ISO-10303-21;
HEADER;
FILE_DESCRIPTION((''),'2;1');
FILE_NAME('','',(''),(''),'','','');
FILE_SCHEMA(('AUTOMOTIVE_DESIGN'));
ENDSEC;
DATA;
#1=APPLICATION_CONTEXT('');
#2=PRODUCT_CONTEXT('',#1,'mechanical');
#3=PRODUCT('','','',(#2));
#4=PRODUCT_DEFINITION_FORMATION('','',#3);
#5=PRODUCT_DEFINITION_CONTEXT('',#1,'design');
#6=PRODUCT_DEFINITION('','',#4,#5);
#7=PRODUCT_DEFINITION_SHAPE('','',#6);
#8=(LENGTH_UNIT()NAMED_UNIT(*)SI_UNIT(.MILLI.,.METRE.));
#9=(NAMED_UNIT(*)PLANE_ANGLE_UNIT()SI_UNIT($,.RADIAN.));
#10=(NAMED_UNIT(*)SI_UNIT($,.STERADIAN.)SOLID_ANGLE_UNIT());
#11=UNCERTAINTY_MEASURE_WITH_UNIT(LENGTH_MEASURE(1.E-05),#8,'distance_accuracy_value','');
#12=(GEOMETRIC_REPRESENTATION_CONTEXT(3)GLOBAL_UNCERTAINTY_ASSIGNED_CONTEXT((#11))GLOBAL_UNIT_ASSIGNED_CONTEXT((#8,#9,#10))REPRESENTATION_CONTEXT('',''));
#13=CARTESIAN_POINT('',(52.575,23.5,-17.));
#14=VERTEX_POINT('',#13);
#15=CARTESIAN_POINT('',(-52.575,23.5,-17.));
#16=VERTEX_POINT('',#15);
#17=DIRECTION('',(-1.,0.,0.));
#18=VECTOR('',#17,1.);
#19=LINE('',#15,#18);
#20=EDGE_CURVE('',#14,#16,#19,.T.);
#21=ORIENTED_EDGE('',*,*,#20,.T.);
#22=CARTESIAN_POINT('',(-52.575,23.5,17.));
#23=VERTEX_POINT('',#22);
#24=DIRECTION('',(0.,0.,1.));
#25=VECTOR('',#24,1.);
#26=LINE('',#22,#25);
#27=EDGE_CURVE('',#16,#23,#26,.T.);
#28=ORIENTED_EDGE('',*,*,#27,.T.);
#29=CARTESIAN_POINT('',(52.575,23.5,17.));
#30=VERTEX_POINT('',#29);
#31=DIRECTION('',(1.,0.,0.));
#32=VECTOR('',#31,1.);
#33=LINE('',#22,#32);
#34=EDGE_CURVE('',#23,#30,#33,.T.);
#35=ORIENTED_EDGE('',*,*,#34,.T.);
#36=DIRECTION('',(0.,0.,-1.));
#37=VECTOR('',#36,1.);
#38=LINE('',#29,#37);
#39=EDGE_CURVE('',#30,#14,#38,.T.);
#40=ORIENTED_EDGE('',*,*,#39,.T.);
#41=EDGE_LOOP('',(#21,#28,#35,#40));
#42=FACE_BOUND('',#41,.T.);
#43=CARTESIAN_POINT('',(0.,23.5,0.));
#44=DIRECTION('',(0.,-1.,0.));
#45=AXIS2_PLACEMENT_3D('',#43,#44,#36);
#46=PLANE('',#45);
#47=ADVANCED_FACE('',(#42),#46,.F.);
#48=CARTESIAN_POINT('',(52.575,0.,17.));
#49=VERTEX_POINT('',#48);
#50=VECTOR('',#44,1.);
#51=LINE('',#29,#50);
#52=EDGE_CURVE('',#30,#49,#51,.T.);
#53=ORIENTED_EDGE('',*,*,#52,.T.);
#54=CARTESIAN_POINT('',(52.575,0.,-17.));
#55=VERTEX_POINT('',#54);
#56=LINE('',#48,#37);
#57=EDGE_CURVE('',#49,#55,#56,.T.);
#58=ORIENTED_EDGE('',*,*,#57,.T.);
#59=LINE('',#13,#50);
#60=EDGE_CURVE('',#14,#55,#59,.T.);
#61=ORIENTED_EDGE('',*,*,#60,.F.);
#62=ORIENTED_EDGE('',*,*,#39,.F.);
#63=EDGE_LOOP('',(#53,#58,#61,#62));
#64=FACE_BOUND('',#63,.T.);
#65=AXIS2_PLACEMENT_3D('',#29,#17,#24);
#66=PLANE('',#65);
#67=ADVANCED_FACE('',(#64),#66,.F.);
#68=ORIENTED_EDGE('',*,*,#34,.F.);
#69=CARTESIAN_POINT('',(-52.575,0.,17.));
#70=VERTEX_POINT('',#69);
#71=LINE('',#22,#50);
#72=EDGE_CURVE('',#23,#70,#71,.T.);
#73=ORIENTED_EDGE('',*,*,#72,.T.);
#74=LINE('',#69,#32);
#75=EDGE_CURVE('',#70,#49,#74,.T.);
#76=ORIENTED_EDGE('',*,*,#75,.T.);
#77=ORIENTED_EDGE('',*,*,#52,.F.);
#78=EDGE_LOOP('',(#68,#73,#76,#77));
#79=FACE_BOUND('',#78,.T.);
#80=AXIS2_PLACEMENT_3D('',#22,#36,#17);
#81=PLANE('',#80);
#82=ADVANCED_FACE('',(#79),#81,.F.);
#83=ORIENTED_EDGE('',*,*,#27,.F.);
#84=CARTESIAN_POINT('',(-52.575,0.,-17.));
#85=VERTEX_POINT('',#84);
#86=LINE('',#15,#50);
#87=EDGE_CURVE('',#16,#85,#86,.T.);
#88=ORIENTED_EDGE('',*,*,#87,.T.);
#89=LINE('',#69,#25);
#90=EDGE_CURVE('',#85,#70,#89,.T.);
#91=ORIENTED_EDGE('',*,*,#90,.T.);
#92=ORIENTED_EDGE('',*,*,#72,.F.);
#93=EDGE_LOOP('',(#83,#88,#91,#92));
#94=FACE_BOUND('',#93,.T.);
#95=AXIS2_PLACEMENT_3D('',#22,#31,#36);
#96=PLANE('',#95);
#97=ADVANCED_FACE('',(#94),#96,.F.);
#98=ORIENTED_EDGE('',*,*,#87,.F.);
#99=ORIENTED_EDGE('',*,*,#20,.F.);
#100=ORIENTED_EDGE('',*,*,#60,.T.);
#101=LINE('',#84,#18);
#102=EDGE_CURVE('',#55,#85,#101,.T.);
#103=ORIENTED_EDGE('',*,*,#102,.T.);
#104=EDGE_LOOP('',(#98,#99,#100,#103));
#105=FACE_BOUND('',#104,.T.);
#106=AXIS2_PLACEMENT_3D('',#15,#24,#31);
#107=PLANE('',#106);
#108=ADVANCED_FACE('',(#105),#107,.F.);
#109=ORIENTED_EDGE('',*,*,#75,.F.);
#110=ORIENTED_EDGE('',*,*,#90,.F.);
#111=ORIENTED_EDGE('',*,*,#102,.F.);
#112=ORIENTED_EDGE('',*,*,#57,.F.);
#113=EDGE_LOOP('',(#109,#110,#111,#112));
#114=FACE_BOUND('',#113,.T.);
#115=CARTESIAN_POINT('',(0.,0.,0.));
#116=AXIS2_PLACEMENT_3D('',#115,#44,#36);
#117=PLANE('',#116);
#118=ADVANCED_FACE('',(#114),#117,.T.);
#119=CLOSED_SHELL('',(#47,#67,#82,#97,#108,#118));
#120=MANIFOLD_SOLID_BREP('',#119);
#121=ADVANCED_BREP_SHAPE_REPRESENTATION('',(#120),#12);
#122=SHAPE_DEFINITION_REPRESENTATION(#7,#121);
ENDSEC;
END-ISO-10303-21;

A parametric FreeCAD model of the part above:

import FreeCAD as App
import Part
import Sketcher

doc = App.newDocument("Part")
body = doc.addObject("PartDesign::Body", "Body")

sketch1 = body.newObject("Sketcher::SketchObject", "Sketch")
sketch1.AttachmentSupport = (doc.getObject("XZ_Plane"), [""])
sketch1.MapMode = "FlatFace"
sketch1.addGeometry([
    Part.LineSegment(App.Vector(-52.575, -17, 0), App.Vector(-52.575, 17, 0)),
    Part.LineSegment(App.Vector(-52.575, 17, 0), App.Vector(52.575, 17, 0)),
    Part.LineSegment(App.Vector(52.575, 17, 0), App.Vector(52.575, -17, 0)),
    Part.LineSegment(App.Vector(52.575, -17, 0), App.Vector(-52.575, -17, 0)),
], False)
sketch1.addConstraint([
    Sketcher.Constraint("Coincident", 0, 2, 1, 1),
    Sketcher.Constraint("Coincident", 1, 2, 2, 1),
    Sketcher.Constraint("Coincident", 2, 2, 3, 1),
    Sketcher.Constraint("Coincident", 3, 2, 0, 1),
    Sketcher.Constraint("Vertical", 0),
    Sketcher.Constraint("Horizontal", 1),
    Sketcher.Constraint("Vertical", 2),
    Sketcher.Constraint("Horizontal", 3),
    Sketcher.Constraint("Symmetric", 0, 2, 2, 2, -1, 1),
    Sketcher.Constraint("DistanceY", 0, 1, 0, 2, 34.0),
    Sketcher.Constraint("DistanceX", 1, 1, 1, 2, 105.15),
])
pad1 = body.newObject("PartDesign::Pad", "Pad")
pad1.Profile = sketch1
pad1.Length = 23.5
pad1.Reversed = True

doc.recompute()
